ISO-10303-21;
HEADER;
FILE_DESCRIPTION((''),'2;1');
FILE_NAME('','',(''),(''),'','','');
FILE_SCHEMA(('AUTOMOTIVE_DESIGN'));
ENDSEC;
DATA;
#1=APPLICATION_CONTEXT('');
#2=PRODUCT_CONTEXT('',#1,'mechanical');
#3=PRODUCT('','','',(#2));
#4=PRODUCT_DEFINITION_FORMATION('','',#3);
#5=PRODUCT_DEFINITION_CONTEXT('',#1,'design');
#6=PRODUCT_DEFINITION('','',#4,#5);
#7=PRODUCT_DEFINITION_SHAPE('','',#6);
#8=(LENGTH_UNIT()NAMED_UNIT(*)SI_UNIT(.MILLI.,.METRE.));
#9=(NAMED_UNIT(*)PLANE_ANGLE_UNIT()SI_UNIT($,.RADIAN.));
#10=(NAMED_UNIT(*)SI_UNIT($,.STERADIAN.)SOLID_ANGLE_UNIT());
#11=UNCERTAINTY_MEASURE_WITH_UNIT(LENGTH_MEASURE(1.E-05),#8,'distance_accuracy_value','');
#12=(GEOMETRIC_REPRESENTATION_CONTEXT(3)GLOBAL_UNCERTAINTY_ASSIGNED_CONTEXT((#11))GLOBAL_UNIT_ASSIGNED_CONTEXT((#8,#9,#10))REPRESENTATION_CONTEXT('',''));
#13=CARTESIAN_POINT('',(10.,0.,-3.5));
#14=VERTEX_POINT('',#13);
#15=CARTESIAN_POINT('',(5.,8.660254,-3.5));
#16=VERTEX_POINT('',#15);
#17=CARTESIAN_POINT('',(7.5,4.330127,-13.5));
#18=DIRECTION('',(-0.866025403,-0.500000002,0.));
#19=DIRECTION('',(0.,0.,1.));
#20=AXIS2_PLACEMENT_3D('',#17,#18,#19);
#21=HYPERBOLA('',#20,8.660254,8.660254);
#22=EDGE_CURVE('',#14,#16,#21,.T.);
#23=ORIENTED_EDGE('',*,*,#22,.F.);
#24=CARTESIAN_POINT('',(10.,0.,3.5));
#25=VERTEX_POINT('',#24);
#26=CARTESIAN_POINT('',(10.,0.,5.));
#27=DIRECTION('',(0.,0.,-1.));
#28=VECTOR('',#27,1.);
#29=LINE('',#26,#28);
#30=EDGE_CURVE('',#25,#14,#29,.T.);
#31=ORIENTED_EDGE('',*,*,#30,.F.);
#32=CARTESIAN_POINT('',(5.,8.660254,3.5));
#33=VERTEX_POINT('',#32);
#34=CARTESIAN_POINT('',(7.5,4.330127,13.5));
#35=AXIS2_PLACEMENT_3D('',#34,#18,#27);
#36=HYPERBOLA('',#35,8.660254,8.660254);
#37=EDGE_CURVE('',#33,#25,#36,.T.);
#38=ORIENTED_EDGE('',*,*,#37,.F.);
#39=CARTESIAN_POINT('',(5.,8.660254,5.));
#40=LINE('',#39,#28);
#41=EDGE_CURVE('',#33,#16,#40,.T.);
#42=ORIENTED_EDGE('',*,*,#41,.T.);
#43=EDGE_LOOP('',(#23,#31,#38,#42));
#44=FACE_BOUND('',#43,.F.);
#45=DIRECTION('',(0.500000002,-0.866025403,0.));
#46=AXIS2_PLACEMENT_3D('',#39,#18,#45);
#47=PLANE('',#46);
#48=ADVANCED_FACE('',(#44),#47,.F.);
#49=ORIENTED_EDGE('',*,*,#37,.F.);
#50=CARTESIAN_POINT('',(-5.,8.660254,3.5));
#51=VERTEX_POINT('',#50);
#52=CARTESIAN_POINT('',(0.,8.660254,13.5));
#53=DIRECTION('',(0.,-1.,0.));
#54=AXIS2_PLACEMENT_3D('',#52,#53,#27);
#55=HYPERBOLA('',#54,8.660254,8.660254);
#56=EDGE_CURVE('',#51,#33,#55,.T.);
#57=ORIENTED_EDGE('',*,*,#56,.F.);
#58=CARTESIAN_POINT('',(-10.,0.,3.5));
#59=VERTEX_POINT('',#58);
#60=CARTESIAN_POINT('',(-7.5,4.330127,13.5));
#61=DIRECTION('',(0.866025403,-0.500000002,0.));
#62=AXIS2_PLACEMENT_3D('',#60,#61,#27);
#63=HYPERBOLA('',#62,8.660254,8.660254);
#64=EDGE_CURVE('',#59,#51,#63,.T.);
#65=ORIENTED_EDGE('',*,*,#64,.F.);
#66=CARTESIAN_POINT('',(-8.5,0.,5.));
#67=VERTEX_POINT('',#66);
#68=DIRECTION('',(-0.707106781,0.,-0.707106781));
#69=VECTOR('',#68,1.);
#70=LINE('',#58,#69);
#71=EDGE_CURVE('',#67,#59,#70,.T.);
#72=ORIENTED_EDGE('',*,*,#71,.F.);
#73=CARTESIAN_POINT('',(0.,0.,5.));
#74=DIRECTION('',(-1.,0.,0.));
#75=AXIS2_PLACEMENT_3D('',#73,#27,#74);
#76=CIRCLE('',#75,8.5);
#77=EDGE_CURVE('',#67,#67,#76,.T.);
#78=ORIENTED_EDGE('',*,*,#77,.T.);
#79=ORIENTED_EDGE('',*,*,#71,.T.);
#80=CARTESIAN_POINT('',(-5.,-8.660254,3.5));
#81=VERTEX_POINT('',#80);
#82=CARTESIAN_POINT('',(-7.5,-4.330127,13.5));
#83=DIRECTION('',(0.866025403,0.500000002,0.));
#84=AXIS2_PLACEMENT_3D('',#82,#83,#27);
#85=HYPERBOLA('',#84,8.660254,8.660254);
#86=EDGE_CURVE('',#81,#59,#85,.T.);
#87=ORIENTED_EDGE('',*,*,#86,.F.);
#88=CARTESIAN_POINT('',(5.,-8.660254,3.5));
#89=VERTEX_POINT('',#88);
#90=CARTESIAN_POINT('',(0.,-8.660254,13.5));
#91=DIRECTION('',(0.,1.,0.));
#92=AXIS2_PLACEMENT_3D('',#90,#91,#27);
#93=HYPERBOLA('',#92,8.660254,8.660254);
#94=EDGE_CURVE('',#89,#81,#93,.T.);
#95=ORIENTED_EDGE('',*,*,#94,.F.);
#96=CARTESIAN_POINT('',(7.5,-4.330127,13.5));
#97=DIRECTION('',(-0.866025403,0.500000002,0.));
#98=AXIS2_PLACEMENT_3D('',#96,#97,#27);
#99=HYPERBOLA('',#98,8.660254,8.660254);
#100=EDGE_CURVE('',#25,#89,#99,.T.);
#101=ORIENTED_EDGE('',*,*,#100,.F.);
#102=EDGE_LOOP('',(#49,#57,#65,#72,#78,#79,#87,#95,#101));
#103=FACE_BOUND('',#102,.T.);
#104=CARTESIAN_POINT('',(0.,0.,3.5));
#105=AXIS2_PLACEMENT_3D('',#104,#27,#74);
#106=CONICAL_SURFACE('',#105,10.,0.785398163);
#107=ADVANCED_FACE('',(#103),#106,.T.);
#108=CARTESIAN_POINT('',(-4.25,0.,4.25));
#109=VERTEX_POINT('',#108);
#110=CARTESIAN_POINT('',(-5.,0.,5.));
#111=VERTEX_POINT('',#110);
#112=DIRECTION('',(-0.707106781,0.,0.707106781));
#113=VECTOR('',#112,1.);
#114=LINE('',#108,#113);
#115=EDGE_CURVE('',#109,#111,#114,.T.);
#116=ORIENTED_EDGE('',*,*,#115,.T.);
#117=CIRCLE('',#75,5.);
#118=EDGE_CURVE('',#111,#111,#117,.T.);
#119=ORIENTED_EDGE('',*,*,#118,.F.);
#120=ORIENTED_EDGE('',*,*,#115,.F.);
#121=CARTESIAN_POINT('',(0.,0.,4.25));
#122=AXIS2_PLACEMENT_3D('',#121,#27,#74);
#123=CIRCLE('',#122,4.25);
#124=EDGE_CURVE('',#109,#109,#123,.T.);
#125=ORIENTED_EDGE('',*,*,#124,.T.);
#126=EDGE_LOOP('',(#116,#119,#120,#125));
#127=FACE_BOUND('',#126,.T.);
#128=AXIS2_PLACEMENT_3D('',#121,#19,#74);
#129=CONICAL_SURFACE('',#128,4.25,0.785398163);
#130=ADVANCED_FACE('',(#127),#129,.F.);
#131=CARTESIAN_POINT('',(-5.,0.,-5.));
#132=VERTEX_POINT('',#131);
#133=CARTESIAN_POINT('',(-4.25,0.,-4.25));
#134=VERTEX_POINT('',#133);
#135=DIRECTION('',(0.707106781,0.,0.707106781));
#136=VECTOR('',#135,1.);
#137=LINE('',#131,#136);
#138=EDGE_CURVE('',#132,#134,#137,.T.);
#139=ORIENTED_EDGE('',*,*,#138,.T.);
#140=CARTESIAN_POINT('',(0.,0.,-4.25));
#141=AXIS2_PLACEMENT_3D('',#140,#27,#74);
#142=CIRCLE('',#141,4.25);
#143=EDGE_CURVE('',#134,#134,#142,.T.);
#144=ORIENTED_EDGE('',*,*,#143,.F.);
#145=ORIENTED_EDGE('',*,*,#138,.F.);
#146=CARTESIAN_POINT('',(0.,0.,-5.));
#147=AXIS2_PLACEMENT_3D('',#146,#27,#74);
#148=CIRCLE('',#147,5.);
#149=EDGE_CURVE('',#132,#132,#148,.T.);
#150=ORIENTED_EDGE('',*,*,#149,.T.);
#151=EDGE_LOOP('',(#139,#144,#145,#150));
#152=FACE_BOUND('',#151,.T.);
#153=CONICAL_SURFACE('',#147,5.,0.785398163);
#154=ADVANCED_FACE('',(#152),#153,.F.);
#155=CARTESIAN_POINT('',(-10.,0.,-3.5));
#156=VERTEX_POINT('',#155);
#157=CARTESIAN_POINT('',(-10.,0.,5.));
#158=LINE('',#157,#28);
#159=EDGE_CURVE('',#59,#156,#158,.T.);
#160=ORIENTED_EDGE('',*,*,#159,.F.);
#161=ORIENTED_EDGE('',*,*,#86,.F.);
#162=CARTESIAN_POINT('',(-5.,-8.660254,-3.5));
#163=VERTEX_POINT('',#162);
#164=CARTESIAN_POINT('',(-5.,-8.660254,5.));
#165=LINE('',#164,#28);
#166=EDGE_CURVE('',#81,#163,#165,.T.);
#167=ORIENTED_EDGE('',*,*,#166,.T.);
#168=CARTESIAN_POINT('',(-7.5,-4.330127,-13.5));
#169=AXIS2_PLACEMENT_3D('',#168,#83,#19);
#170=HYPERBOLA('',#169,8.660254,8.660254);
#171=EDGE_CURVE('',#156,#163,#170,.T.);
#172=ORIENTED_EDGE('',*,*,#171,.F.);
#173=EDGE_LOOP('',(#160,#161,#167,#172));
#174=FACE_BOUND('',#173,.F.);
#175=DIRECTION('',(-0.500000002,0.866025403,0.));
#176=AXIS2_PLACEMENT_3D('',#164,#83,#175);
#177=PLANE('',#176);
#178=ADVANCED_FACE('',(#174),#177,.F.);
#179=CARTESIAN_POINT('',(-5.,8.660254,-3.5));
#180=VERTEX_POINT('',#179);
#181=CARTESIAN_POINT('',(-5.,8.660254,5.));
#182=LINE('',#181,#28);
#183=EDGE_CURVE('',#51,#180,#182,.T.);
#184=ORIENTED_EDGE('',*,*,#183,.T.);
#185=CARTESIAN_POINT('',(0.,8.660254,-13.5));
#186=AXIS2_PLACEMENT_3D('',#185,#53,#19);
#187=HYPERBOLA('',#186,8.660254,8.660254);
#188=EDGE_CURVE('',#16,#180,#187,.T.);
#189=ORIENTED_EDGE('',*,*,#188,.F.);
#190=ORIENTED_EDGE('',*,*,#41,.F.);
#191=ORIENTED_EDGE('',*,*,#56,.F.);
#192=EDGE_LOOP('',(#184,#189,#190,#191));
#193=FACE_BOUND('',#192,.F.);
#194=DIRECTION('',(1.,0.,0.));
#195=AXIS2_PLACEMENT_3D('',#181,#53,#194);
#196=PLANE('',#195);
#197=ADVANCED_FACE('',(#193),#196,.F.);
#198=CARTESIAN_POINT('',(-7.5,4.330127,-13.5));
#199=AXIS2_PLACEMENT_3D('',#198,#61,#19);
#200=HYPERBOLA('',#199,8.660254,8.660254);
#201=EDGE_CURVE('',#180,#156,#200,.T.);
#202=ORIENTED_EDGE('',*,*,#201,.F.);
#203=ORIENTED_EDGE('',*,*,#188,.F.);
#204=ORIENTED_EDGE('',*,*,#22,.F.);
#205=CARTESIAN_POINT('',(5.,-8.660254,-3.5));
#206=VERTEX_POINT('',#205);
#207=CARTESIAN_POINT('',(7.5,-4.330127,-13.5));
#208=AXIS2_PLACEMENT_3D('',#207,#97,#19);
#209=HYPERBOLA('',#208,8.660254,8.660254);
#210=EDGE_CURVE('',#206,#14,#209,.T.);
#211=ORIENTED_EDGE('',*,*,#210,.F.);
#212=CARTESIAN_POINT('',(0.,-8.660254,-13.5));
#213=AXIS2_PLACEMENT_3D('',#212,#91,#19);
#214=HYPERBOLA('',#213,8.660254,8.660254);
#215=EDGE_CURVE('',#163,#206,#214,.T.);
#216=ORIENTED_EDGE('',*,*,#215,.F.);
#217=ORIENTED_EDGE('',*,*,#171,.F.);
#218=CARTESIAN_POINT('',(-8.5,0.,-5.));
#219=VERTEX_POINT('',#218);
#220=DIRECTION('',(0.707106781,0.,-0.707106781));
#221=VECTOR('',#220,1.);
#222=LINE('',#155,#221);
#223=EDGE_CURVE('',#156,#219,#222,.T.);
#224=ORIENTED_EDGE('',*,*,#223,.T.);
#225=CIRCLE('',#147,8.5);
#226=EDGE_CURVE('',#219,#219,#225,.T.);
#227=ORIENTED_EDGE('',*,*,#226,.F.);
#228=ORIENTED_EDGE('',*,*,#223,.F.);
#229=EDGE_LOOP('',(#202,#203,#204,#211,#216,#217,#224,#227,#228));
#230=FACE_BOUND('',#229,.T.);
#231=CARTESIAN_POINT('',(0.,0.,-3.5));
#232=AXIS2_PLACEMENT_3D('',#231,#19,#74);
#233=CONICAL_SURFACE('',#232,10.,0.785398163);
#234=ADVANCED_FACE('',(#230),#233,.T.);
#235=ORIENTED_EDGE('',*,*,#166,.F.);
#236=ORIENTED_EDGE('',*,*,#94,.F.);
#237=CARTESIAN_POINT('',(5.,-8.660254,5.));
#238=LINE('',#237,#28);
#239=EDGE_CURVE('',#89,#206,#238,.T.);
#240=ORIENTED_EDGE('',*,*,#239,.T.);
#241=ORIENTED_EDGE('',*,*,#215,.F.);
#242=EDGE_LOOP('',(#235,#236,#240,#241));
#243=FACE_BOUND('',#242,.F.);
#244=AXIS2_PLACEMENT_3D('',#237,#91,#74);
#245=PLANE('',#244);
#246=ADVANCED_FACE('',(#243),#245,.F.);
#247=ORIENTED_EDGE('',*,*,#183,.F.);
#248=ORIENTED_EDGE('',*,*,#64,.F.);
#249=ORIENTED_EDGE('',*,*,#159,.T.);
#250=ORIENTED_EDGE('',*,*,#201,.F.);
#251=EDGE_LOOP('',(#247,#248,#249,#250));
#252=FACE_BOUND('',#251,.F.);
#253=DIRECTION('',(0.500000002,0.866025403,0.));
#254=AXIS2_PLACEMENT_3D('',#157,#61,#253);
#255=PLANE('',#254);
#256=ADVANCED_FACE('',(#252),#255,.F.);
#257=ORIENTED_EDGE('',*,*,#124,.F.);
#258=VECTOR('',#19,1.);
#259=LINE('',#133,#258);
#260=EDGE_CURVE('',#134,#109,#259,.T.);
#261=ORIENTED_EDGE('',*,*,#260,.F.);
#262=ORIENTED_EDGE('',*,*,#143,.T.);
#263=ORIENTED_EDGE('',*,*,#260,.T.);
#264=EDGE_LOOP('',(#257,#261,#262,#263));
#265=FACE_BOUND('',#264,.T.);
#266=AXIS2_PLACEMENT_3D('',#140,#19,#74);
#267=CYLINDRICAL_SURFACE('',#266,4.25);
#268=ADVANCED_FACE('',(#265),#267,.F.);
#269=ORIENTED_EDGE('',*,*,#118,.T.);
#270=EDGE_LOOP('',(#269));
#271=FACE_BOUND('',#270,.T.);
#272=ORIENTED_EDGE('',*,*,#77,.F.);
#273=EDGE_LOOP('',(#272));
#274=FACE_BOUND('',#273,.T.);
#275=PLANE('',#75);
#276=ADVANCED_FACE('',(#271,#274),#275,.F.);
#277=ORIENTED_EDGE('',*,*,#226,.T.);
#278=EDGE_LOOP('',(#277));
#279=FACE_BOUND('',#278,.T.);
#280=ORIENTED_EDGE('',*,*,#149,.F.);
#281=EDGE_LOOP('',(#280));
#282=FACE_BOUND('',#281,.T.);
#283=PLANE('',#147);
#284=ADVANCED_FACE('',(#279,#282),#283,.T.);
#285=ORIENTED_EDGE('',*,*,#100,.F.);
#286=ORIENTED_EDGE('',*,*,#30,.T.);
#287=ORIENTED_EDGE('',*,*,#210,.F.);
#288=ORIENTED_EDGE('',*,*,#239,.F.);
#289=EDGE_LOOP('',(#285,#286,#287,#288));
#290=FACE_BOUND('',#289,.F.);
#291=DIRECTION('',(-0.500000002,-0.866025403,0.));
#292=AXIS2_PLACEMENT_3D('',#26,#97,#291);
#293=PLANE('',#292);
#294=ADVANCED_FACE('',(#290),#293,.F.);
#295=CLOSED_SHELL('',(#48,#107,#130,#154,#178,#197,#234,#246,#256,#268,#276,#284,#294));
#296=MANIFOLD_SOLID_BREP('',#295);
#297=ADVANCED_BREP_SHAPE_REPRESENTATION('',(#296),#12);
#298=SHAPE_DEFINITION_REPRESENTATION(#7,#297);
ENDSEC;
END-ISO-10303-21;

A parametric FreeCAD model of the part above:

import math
import FreeCAD as App
import Part
import Sketcher
Q = App.Units.Quantity


def edges_at(feature, points):
    """Names of the edges that pass closest to the given points."""
    edges = feature.Shape.Edges
    near = lambda p: min(range(len(edges)), key=lambda i: edges[i].distToShape(Part.Vertex(*p))[0])
    return sorted({f"Edge{near(p) + 1}" for p in points})


def add_polygon(sketch, points):
    """Adds a closed chain of lines whose ends are joined by coincident constraints."""
    first, n = sketch.GeometryCount, len(points)
    for a, b in zip(points, points[1:] + points[:1]):
        sketch.addGeometry(Part.LineSegment(App.Vector(*a, 0), App.Vector(*b, 0)), False)
    for i in range(n):
        sketch.addConstraint(Sketcher.Constraint("Coincident", first + i, 2, first + (i + 1) % n, 1))

doc = App.newDocument("Part")
body = doc.addObject("PartDesign::Body", "Body")

sketch1 = body.newObject("Sketcher::SketchObject", "Sketch")
sketch1.AttachmentSupport = (doc.getObject("XZ_Plane"), [""])
sketch1.MapMode = "FlatFace"
add_polygon(sketch1, [(-5, 5), (-10, 5), (-10, -5), (-5, -5), (-4.2, -4.2), (-4.2, 4.2)])
sketch1.addConstraint(Sketcher.Constraint("Horizontal", 0))
sketch1.addConstraint(Sketcher.Constraint("Vertical", 1))
sketch1.addConstraint(Sketcher.Constraint("Horizontal", 2))
sketch1.addConstraint(Sketcher.Constraint("Vertical", 4))
sketch1.addConstraint(Sketcher.Constraint("Symmetric", 2, 2, 5, 2, -1))
sketch1.addConstraint(Sketcher.Constraint("Perpendicular", 3, 5))
sketch1.addConstraint(Sketcher.Constraint("Equal", 3, 5))
sketch1.addConstraint(Sketcher.Constraint("DistanceX", 0, 2, 0, 1, Q("5 mm")))
sketch1.addConstraint(Sketcher.Constraint("DistanceY", 1, 2, 1, 1, Q("10 mm")))
sketch1.addConstraint(Sketcher.Constraint("DistanceY", 4, 1, 4, 2, Q("8.5 mm")))
sketch1.addConstraint(Sketcher.Constraint("DistanceX", 0, 2, -1, 1, Q("10 mm")))
revolution = body.newObject("PartDesign::Revolution", "Revolution")
revolution.Profile = sketch1
revolution.ReferenceAxis = (sketch1, ["V_Axis"])
revolution.Angle = 360
doc.recompute()

chamfer = body.newObject("PartDesign::Chamfer", "Chamfer")
chamfer.Base = (revolution, edges_at(revolution, [(10, 0, 5), (10, 0, -5)]))
chamfer.Size = 1.5

sketch2 = body.newObject("Sketcher::SketchObject", "Sketch001")
sketch2.AttachmentSupport = (doc.getObject("XY_Plane"), [""])
sketch2.MapMode = "FlatFace"
sketch2.AttachmentOffset = App.Placement(App.Vector(0, 0, 5), App.Rotation())
sketch2.addGeometry(Part.ArcOfCircle(Part.Circle(App.Vector(0, 0, 0), App.Vector(0, 0, 1), 10), math.radians(60), math.radians(120)), False)
sketch2.addGeometry(Part.LineSegment(App.Vector(-5, 9, 0), App.Vector(5, 9, 0)), False)
sketch2.addGeometry(Part.LineSegment(App.Vector(-10, 0, 0), App.Vector(-5, 9, 0)), False)
sketch2.addGeometry(Part.ArcOfCircle(Part.Circle(App.Vector(0, 0, 0), App.Vector(0, 0, 1), 10), math.radians(120), math.radians(180)), False)
sketch2.addGeometry(Part.LineSegment(App.Vector(-5, -9, 0), App.Vector(-10, 0, 0)), False)
sketch2.addGeometry(Part.ArcOfCircle(Part.Circle(App.Vector(0, 0, 0), App.Vector(0, 0, 1), 10), math.radians(-180), math.radians(-120)), False)
sketch2.addGeometry(Part.LineSegment(App.Vector(5, -9, 0), App.Vector(-5, -9, 0)), False)
sketch2.addGeometry(Part.ArcOfCircle(Part.Circle(App.Vector(0, 0, 0), App.Vector(0, 0, 1), 10), math.radians(-120), math.radians(-60)), False)
sketch2.addGeometry(Part.ArcOfCircle(Part.Circle(App.Vector(0, 0, 0), App.Vector(0, 0, 1), 10), math.radians(-60), math.radians(0)), False)
sketch2.addGeometry(Part.LineSegment(App.Vector(10, 0, 0), App.Vector(5, -9, 0)), False)
sketch2.addGeometry(Part.ArcOfCircle(Part.Circle(App.Vector(0, 0, 0), App.Vector(0, 0, 1), 10), math.radians(0), math.radians(60)), False)
sketch2.addGeometry(Part.LineSegment(App.Vector(5, 9, 0), App.Vector(10, 0, 0)), False)
sketch2.addConstraint(Sketcher.Constraint("Coincident", 0, 1, 1, 2))
sketch2.addConstraint(Sketcher.Constraint("Coincident", 1, 1, 0, 2))
sketch2.addConstraint(Sketcher.Constraint("Coincident", 2, 1, 3, 2))
sketch2.addConstraint(Sketcher.Constraint("Coincident", 3, 1, 2, 2))
sketch2.addConstraint(Sketcher.Constraint("Coincident", 4, 1, 5, 2))
sketch2.addConstraint(Sketcher.Constraint("Coincident", 5, 1, 4, 2))
sketch2.addConstraint(Sketcher.Constraint("Coincident", 6, 1, 7, 2))
sketch2.addConstraint(Sketcher.Constraint("Coincident", 7, 1, 6, 2))
sketch2.addConstraint(Sketcher.Constraint("Coincident", 8, 1, 9, 2))
sketch2.addConstraint(Sketcher.Constraint("Coincident", 9, 1, 8, 2))
sketch2.addConstraint(Sketcher.Constraint("Coincident", 10, 1, 11, 2))
sketch2.addConstraint(Sketcher.Constraint("Coincident", 11, 1, 10, 2))
sketch2.addConstraint(Sketcher.Constraint("Horizontal", 1))
sketch2.addConstraint(Sketcher.Constraint("Horizontal", 6))
sketch2.addConstraint(Sketcher.Constraint("Coincident", 0, 3, -1, 1))
sketch2.addConstraint(Sketcher.Constraint("Coincident", 3, 3, -1, 1))
sketch2.addConstraint(Sketcher.Constraint("Coincident", 5, 3, -1, 1))
sketch2.addConstraint(Sketcher.Constraint("Coincident", 7, 3, -1, 1))
sketch2.addConstraint(Sketcher.Constraint("Coincident", 8, 3, -1, 1))
sketch2.addConstraint(Sketcher.Constraint("Coincident", 10, 3, -1, 1))
sketch2.addConstraint(Sketcher.Constraint("Coincident", 3, 1, 1, 1))
sketch2.addConstraint(Sketcher.Constraint("Coincident", 5, 1, 2, 1))
sketch2.addConstraint(Sketcher.Constraint("Coincident", 7, 1, 4, 1))
sketch2.addConstraint(Sketcher.Constraint("Coincident", 8, 1, 6, 1))
sketch2.addConstraint(Sketcher.Constraint("Coincident", 10, 1, 9, 1))
sketch2.addConstraint(Sketcher.Constraint("PointOnObject", 2, 1, -1))
sketch2.addConstraint(Sketcher.Constraint("PointOnObject", 9, 1, -1))
sketch2.addConstraint(Sketcher.Constraint("Parallel", 2, 9))
sketch2.addConstraint(Sketcher.Constraint("Parallel", 4, 11))
sketch2.addConstraint(Sketcher.Constraint("Radius", 0, Q("10 mm")))
sketch2.addConstraint(Sketcher.Constraint("DistanceX", 1, 1, 1, 2, Q("10 mm")))
pocket1 = body.newObject("PartDesign::Pocket", "Pocket")
pocket1.Profile = sketch2
pocket1.Type = "ThroughAll"

doc.recompute()
